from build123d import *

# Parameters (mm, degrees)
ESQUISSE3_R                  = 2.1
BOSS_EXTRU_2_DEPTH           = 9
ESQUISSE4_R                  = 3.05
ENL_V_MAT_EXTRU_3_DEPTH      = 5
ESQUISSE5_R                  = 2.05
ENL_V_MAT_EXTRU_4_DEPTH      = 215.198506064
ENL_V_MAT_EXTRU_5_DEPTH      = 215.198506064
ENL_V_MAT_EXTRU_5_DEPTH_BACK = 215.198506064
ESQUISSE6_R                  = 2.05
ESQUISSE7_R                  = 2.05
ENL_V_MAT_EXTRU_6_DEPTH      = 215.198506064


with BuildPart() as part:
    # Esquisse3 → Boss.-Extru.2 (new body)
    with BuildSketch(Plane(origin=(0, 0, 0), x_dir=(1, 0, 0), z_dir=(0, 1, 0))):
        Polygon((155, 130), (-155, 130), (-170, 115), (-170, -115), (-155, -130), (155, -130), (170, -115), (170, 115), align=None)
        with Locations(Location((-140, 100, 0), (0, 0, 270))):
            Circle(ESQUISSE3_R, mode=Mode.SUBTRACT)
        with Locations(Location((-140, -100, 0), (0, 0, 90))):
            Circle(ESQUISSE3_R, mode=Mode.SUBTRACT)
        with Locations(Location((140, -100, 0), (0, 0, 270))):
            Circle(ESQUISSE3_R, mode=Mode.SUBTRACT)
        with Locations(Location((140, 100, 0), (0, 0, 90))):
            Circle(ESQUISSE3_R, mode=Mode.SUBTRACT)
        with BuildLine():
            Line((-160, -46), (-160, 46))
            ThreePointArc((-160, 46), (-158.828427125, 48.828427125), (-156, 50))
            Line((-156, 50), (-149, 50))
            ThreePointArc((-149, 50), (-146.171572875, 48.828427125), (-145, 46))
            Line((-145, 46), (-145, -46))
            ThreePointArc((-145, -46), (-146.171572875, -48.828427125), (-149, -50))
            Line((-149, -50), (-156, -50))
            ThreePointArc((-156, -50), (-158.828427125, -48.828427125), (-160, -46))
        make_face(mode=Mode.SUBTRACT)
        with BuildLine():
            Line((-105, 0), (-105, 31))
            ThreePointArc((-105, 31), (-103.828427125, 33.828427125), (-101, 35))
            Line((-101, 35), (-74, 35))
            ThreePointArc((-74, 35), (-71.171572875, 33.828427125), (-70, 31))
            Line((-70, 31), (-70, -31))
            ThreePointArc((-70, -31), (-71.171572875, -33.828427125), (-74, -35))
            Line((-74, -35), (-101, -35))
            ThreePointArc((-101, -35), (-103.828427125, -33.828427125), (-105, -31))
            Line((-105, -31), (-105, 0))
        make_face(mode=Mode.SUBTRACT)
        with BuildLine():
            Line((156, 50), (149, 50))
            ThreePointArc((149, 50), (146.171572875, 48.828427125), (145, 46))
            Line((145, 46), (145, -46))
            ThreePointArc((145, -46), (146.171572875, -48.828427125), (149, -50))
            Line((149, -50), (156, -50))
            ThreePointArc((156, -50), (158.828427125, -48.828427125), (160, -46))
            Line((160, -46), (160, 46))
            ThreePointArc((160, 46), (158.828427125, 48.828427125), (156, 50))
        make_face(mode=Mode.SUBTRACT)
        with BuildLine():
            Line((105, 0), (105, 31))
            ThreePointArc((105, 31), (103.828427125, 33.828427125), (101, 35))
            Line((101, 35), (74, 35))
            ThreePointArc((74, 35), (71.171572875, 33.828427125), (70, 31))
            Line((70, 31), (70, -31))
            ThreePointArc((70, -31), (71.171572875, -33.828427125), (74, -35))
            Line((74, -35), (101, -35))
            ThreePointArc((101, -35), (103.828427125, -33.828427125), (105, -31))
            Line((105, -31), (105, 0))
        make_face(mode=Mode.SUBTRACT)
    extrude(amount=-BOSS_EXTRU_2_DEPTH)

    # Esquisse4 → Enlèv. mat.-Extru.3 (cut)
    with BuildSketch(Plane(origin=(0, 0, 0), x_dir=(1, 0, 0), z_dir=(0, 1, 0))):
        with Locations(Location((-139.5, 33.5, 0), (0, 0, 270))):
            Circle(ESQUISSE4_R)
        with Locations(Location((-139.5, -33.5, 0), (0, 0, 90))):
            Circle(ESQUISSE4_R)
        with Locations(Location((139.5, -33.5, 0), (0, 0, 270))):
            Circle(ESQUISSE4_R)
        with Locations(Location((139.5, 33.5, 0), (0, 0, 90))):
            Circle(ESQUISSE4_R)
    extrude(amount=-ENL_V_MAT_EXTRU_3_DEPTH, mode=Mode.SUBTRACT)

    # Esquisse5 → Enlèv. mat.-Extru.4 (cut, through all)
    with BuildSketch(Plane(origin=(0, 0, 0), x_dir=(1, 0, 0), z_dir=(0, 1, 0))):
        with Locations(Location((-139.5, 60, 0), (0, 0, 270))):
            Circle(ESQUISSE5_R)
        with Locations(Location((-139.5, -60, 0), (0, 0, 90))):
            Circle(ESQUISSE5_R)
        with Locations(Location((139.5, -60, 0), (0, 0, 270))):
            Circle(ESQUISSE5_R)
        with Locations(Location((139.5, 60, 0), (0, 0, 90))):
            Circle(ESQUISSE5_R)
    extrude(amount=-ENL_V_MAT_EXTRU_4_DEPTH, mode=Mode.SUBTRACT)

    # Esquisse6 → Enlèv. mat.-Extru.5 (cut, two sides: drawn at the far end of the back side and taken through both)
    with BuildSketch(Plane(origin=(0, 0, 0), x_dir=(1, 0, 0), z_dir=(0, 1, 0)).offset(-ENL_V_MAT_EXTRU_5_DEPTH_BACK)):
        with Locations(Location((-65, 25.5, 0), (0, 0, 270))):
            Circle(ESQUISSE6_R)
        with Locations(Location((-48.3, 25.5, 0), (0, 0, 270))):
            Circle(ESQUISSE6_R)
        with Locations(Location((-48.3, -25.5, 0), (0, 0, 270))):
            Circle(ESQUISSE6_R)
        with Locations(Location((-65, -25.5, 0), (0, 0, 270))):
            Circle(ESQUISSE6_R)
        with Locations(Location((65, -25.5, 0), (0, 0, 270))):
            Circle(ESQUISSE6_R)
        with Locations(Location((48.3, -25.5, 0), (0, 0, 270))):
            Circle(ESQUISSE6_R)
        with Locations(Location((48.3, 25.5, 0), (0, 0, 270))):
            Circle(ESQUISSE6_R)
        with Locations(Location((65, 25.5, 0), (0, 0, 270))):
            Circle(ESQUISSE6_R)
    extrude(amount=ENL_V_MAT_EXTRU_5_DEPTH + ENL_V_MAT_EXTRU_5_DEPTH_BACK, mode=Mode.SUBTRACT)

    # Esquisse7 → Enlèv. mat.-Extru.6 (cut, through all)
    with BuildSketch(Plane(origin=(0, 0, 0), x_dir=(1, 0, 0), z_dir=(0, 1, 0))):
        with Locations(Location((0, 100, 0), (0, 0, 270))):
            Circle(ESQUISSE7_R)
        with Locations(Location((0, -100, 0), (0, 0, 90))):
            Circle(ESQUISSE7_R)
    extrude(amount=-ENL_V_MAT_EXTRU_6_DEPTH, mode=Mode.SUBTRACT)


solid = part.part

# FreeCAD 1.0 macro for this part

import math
import FreeCAD as App
import Part
import Sketcher
from FreeCAD import Vector

doc = App.newDocument("Part")
body = doc.addObject("PartDesign::Body", "Body")

# Sketch on XZ plane
sketch1 = body.newObject("Sketcher::SketchObject", "Sketch")
sketch1.AttachmentSupport = (doc.getObject("XZ_Plane"), [""])
sketch1.MapMode = "FlatFace"
sketch1.addGeometry([
    Part.LineSegment(Vector(155, -130, 0), Vector(-155, -130, 0)),  # 0
    Part.LineSegment(Vector(-155, -130, 0), Vector(-170, -115, 0)),  # 1
    Part.LineSegment(Vector(-170, -115, 0), Vector(-170, 115, 0)),  # 2
    Part.LineSegment(Vector(-170, 115, 0), Vector(-155, 130, 0)),  # 3
    Part.LineSegment(Vector(-155, 130, 0), Vector(155, 130, 0)),  # 4
    Part.LineSegment(Vector(155, 130, 0), Vector(170, 115, 0)),  # 5
    Part.LineSegment(Vector(170, 115, 0), Vector(170, -115, 0)),  # 6
    Part.LineSegment(Vector(170, -115, 0), Vector(155, -130, 0)),  # 7
    Part.Circle(Vector(-140, 100, 0), Vector(0, 0, 1), 2.1),  # 8
    Part.Circle(Vector(140, 100, 0), Vector(0, 0, 1), 2.1),  # 9
    Part.ArcOfCircle(Part.Circle(Vector(-156, 46, 0), Vector(0, 0, 1), 4), math.radians(90), math.radians(180)),  # 10
    Part.LineSegment(Vector(-160, 46, 0), Vector(-160, -46, 0)),  # 11
    Part.ArcOfCircle(Part.Circle(Vector(-156, -46, 0), Vector(0, 0, 1), 4), math.radians(180), math.radians(270)),  # 12
    Part.LineSegment(Vector(-156, -50, 0), Vector(-149, -50, 0)),  # 13
    Part.ArcOfCircle(Part.Circle(Vector(-149, -46, 0), Vector(0, 0, 1), 4), math.radians(-90), math.radians(0)),  # 14
    Part.LineSegment(Vector(-145, -46, 0), Vector(-145, 46, 0)),  # 15
    Part.ArcOfCircle(Part.Circle(Vector(-149, 46, 0), Vector(0, 0, 1), 4), math.radians(0), math.radians(90)),  # 16
    Part.LineSegment(Vector(-149, 50, 0), Vector(-156, 50, 0)),  # 17
    Part.LineSegment(Vector(-105, 31, 0), Vector(-105, -31, 0)),  # 18
    Part.ArcOfCircle(Part.Circle(Vector(-101, -31, 0), Vector(0, 0, 1), 4), math.radians(180), math.radians(270)),  # 19
    Part.LineSegment(Vector(-101, -35, 0), Vector(-74, -35, 0)),  # 20
    Part.ArcOfCircle(Part.Circle(Vector(-74, -31, 0), Vector(0, 0, 1), 4), math.radians(-90), math.radians(0)),  # 21
    Part.LineSegment(Vector(-70, -31, 0), Vector(-70, 31, 0)),  # 22
    Part.ArcOfCircle(Part.Circle(Vector(-74, 31, 0), Vector(0, 0, 1), 4), math.radians(0), math.radians(90)),  # 23
    Part.LineSegment(Vector(-74, 35, 0), Vector(-101, 35, 0)),  # 24
    Part.ArcOfCircle(Part.Circle(Vector(-101, 31, 0), Vector(0, 0, 1), 4), math.radians(90), math.radians(180)),  # 25
    Part.Circle(Vector(-140, -100, 0), Vector(0, 0, 1), 2.1),  # 26
    Part.ArcOfCircle(Part.Circle(Vector(101, -31, 0), Vector(0, 0, 1), 4), math.radians(-90), math.radians(0)),  # 27
    Part.LineSegment(Vector(105, -31, 0), Vector(105, 31, 0)),  # 28
    Part.ArcOfCircle(Part.Circle(Vector(101, 31, 0), Vector(0, 0, 1), 4), math.radians(0), math.radians(90)),  # 29
    Part.LineSegment(Vector(101, 35, 0), Vector(74, 35, 0)),  # 30
    Part.ArcOfCircle(Part.Circle(Vector(74, 31, 0), Vector(0, 0, 1), 4), math.radians(90), math.radians(180)),  # 31
    Part.LineSegment(Vector(70, 31, 0), Vector(70, -31, 0)),  # 32
    Part.ArcOfCircle(Part.Circle(Vector(74, -31, 0), Vector(0, 0, 1), 4), math.radians(180), math.radians(270)),  # 33
    Part.LineSegment(Vector(74, -35, 0), Vector(101, -35, 0)),  # 34
    Part.LineSegment(Vector(149, -50, 0), Vector(156, -50, 0)),  # 35
    Part.ArcOfCircle(Part.Circle(Vector(156, -46, 0), Vector(0, 0, 1), 4), math.radians(-90), math.radians(0)),  # 36
    Part.LineSegment(Vector(160, -46, 0), Vector(160, 46, 0)),  # 37
    Part.ArcOfCircle(Part.Circle(Vector(156, 46, 0), Vector(0, 0, 1), 4), math.radians(0), math.radians(90)),  # 38
    Part.LineSegment(Vector(156, 50, 0), Vector(149, 50, 0)),  # 39
    Part.ArcOfCircle(Part.Circle(Vector(149, 46, 0), Vector(0, 0, 1), 4), math.radians(90), math.radians(180)),  # 40
    Part.LineSegment(Vector(145, 46, 0), Vector(145, -46, 0)),  # 41
    Part.ArcOfCircle(Part.Circle(Vector(149, -46, 0), Vector(0, 0, 1), 4), math.radians(180), math.radians(270)),  # 42
    Part.Circle(Vector(140, -100, 0), Vector(0, 0, 1), 2.1),  # 43
], False)
sketch1.addConstraint([
    Sketcher.Constraint("Coincident", 0, 2, 1, 1),
    Sketcher.Constraint("Coincident", 1, 2, 2, 1),
    Sketcher.Constraint("Coincident", 2, 2, 3, 1),
    Sketcher.Constraint("Coincident", 3, 2, 4, 1),
    Sketcher.Constraint("Coincident", 4, 2, 5, 1),
    Sketcher.Constraint("Coincident", 5, 2, 6, 1),
    Sketcher.Constraint("Coincident", 6, 2, 7, 1),
    Sketcher.Constraint("Coincident", 7, 2, 0, 1),
    Sketcher.Constraint("Tangent", 10, 2, 11, 1),
    Sketcher.Constraint("Tangent", 11, 2, 12, 1),
    Sketcher.Constraint("Tangent", 12, 2, 13, 1),
    Sketcher.Constraint("Tangent", 13, 2, 14, 1),
    Sketcher.Constraint("Tangent", 14, 2, 15, 1),
    Sketcher.Constraint("Tangent", 15, 2, 16, 1),
    Sketcher.Constraint("Tangent", 16, 2, 17, 1),
    Sketcher.Constraint("Tangent", 17, 2, 10, 1),
    Sketcher.Constraint("Tangent", 18, 2, 19, 1),
    Sketcher.Constraint("Tangent", 19, 2, 20, 1),
    Sketcher.Constraint("Tangent", 20, 2, 21, 1),
    Sketcher.Constraint("Tangent", 21, 2, 22, 1),
    Sketcher.Constraint("Tangent", 22, 2, 23, 1),
    Sketcher.Constraint("Tangent", 23, 2, 24, 1),
    Sketcher.Constraint("Tangent", 24, 2, 25, 1),
    Sketcher.Constraint("Tangent", 25, 2, 18, 1),
    Sketcher.Constraint("Tangent", 27, 2, 28, 1),
    Sketcher.Constraint("Tangent", 28, 2, 29, 1),
    Sketcher.Constraint("Tangent", 29, 2, 30, 1),
    Sketcher.Constraint("Tangent", 30, 2, 31, 1),
    Sketcher.Constraint("Tangent", 31, 2, 32, 1),
    Sketcher.Constraint("Tangent", 32, 2, 33, 1),
    Sketcher.Constraint("Tangent", 33, 2, 34, 1),
    Sketcher.Constraint("Tangent", 34, 2, 27, 1),
    Sketcher.Constraint("Tangent", 35, 2, 36, 1),
    Sketcher.Constraint("Tangent", 36, 2, 37, 1),
    Sketcher.Constraint("Tangent", 37, 2, 38, 1),
    Sketcher.Constraint("Tangent", 38, 2, 39, 1),
    Sketcher.Constraint("Tangent", 39, 2, 40, 1),
    Sketcher.Constraint("Tangent", 40, 2, 41, 1),
    Sketcher.Constraint("Tangent", 41, 2, 42, 1),
    Sketcher.Constraint("Tangent", 42, 2, 35, 1),
    Sketcher.Constraint("Horizontal", 0),
    Sketcher.Constraint("Vertical", 2),
    Sketcher.Constraint("Horizontal", 4),
    Sketcher.Constraint("Vertical", 6),
    Sketcher.Constraint("Vertical", 11),
    Sketcher.Constraint("Horizontal", 13),
    Sketcher.Constraint("Vertical", 15),
    Sketcher.Constraint("Horizontal", 17),
    Sketcher.Constraint("Vertical", 18),
    Sketcher.Constraint("Horizontal", 20),
    Sketcher.Constraint("Vertical", 22),
    Sketcher.Constraint("Horizontal", 24),
    Sketcher.Constraint("Vertical", 28),
    Sketcher.Constraint("Horizontal", 30),
    Sketcher.Constraint("Vertical", 32),
    Sketcher.Constraint("Horizontal", 34),
    Sketcher.Constraint("Horizontal", 35),
    Sketcher.Constraint("Vertical", 37),
    Sketcher.Constraint("Horizontal", 39),
    Sketcher.Constraint("Vertical", 41),
    Sketcher.Constraint("Equal", 8, 9),
    Sketcher.Constraint("Equal", 10, 12),
    Sketcher.Constraint("Equal", 12, 14),
    Sketcher.Constraint("Equal", 14, 16),
    Sketcher.Constraint("Equal", 16, 19),
    Sketcher.Constraint("Equal", 19, 21),
    Sketcher.Constraint("Equal", 21, 23),
    Sketcher.Constraint("Equal", 23, 25),
    Sketcher.Constraint("Equal", 9, 26),
    Sketcher.Constraint("Equal", 25, 27),
    Sketcher.Constraint("Equal", 27, 29),
    Sketcher.Constraint("Equal", 29, 31),
    Sketcher.Constraint("Equal", 31, 33),
    Sketcher.Constraint("Equal", 33, 36),
    Sketcher.Constraint("Equal", 36, 38),
    Sketcher.Constraint("Equal", 38, 40),
    Sketcher.Constraint("Equal", 40, 42),
    Sketcher.Constraint("Equal", 26, 43),
    Sketcher.Constraint("Symmetric", 9, 3, 26, 3, -1, 1),
    Sketcher.Constraint("Symmetric", 25, 3, 27, 3, -1, 1),
    Sketcher.Constraint("Symmetric", 21, 3, 31, 3, -1, 1),
    Sketcher.Constraint("Symmetric", 10, 3, 36, 3, -1, 1),
    Sketcher.Constraint("Symmetric", 14, 3, 40, 3, -1, 1),
    Sketcher.Constraint("Symmetric", 8, 3, 43, 3, -1, 1),
    Sketcher.Constraint("Symmetric", 0, 2, 4, 2, -1, 1),
    Sketcher.Constraint("Symmetric", 1, 2, 5, 2, -1, 1),
    Sketcher.Constraint("Symmetric", 8, 3, 9, 3, -2),
    Sketcher.Constraint("Perpendicular", 1, 3),
    Sketcher.Constraint("Perpendicular", 5, 7),
    Sketcher.Constraint("Horizontal", 21, 3, 27, 3),
    Sketcher.Constraint("Horizontal", 14, 3, 36, 3),
    Sketcher.Constraint("Horizontal", 2, 2, 5, 2),
    Sketcher.Constraint("Horizontal", 1, 2, 6, 2),
    Sketcher.Constraint("Vertical", 0, 2, 3, 2),
    Sketcher.Constraint("Radius", 10, 4.0),
    Sketcher.Constraint("Diameter", 8, 4.2),
    Sketcher.Constraint("DistanceX", 0, 2, 0, 1, 310.0),
    Sketcher.Constraint("DistanceX", 13, 1, 13, 2, 7.0),
    Sketcher.Constraint("DistanceX", 20, 1, 20, 2, 27.0),
    Sketcher.Constraint("DistanceY", 2, 1, 2, 2, 230.0),
    Sketcher.Constraint("DistanceY", 11, 2, 11, 1, 92.0),
    Sketcher.Constraint("DistanceY", 18, 2, 18, 1, 62.0),
    Sketcher.Constraint("DistanceX", 8, 3, -1, 1, 140.0),
    Sketcher.Constraint("DistanceY", -1, 1, 8, 3, 100.0),
    Sketcher.Constraint("DistanceX", 10, 3, -1, 1, 156.0),
    Sketcher.Constraint("DistanceX", 19, 3, -1, 1, 101.0),
    Sketcher.Constraint("DistanceY", 0, 2, -1, 1, 130.0),
])
pad1 = body.newObject("PartDesign::Pad", "Pad")
pad1.Profile = sketch1
pad1.Length = 9

# Sketch on XZ plane
sketch2 = body.newObject("Sketcher::SketchObject", "Sketch001")
sketch2.AttachmentSupport = (doc.getObject("XZ_Plane"), [""])
sketch2.MapMode = "FlatFace"
sketch2.addGeometry([
    Part.Circle(Vector(-139.5, -33.5, 0), Vector(0, 0, 1), 3),
    Part.Circle(Vector(-139.5, 33.5, 0), Vector(0, 0, 1), 3),
    Part.Circle(Vector(139.5, 33.5, 0), Vector(0, 0, 1), 3),
    Part.Circle(Vector(139.5, -33.5, 0), Vector(0, 0, 1), 3),
], False)
sketch2.addConstraint([
    Sketcher.Constraint("Equal", 0, 1),
    Sketcher.Constraint("Equal", 1, 2),
    Sketcher.Constraint("Equal", 2, 3),
    Sketcher.Constraint("Symmetric", 0, 3, 2, 3, -1, 1),
    Sketcher.Constraint("Symmetric", 1, 3, 3, 3, -1, 1),
    Sketcher.Constraint("Symmetric", 1, 3, 2, 3, -2),
    Sketcher.Constraint("Diameter", 0, 6.1),
    Sketcher.Constraint("DistanceY", 0, 3, 1, 3, 67.0),
    Sketcher.Constraint("DistanceX", 1, 3, 2, 3, 279.0),
])
pocket1 = body.newObject("PartDesign::Pocket", "Pocket")
pocket1.Profile = sketch2
pocket1.Length = 5
pocket1.Reversed = True

# Sketch on XZ plane
sketch3 = body.newObject("Sketcher::SketchObject", "Sketch002")
sketch3.AttachmentSupport = (doc.getObject("XZ_Plane"), [""])
sketch3.MapMode = "FlatFace"
sketch3.addGeometry([
    Part.Circle(Vector(-139.5, -60, 0), Vector(0, 0, 1), 2),
    Part.Circle(Vector(-139.5, 60, 0), Vector(0, 0, 1), 2),
    Part.Circle(Vector(139.5, 60, 0), Vector(0, 0, 1), 2),
    Part.Circle(Vector(139.5, -60, 0), Vector(0, 0, 1), 2),
], False)
sketch3.addConstraint([
    Sketcher.Constraint("Equal", 0, 1),
    Sketcher.Constraint("Equal", 1, 2),
    Sketcher.Constraint("Equal", 2, 3),
    Sketcher.Constraint("Symmetric", 0, 3, 2, 3, -1, 1),
    Sketcher.Constraint("Symmetric", 1, 3, 3, 3, -1, 1),
    Sketcher.Constraint("Symmetric", 1, 3, 2, 3, -2),
    Sketcher.Constraint("Diameter", 0, 4.1),
    Sketcher.Constraint("DistanceY", 0, 3, -1, 1, 60.0),
    Sketcher.Constraint("DistanceX", 1, 3, 2, 3, 279.0),
])
pocket2 = body.newObject("PartDesign::Pocket", "Pocket001")
pocket2.Profile = sketch3
pocket2.Type = "ThroughAll"
pocket2.Reversed = True

# Sketch on XZ plane
sketch4 = body.newObject("Sketcher::SketchObject", "Sketch003")
sketch4.AttachmentSupport = (doc.getObject("XZ_Plane"), [""])
sketch4.MapMode = "FlatFace"
sketch4.addGeometry([
    Part.Circle(Vector(-65, -25.5, 0), Vector(0, 0, 1), 2),  # 0
    Part.Circle(Vector(-48.3, -25.5, 0), Vector(0, 0, 1), 2),  # 1
    Part.Circle(Vector(-48.3, 25.5, 0), Vector(0, 0, 1), 2),  # 2
    Part.Circle(Vector(-65, 25.5, 0), Vector(0, 0, 1), 2),  # 3
    Part.Circle(Vector(65, 25.5, 0), Vector(0, 0, 1), 2),  # 4
    Part.Circle(Vector(48.3, 25.5, 0), Vector(0, 0, 1), 2),  # 5
    Part.Circle(Vector(48.3, -25.5, 0), Vector(0, 0, 1), 2),  # 6
    Part.Circle(Vector(65, -25.5, 0), Vector(0, 0, 1), 2),  # 7
], False)
sketch4.addConstraint([
    Sketcher.Constraint("Equal", 0, 1),
    Sketcher.Constraint("Equal", 1, 2),
    Sketcher.Constraint("Equal", 2, 3),
    Sketcher.Constraint("Equal", 3, 4),
    Sketcher.Constraint("Equal", 4, 5),
    Sketcher.Constraint("Equal", 5, 6),
    Sketcher.Constraint("Equal", 6, 7),
    Sketcher.Constraint("Symmetric", 0, 3, 4, 3, -1, 1),
    Sketcher.Constraint("Symmetric", 1, 3, 5, 3, -1, 1),
    Sketcher.Constraint("Symmetric", 2, 3, 6, 3, -1, 1),
    Sketcher.Constraint("Symmetric", 3, 3, 7, 3, -1, 1),
    Sketcher.Constraint("Symmetric", 3, 3, 4, 3, -2),
    Sketcher.Constraint("Symmetric", 2, 3, 5, 3, -2),
    Sketcher.Constraint("Horizontal", 0, 3, 1, 3),
    Sketcher.Constraint("Diameter", 0, 4.1),
    Sketcher.Constraint("DistanceX", 0, 3, -1, 1, 65.0),
    Sketcher.Constraint("DistanceY", 1, 3, 2, 3, 51.0),
    Sketcher.Constraint("DistanceX", 1, 3, -1, 1, 48.3),
])
pocket3 = body.newObject("PartDesign::Pocket", "Pocket002")
pocket3.Profile = sketch4
pocket3.Type = "ThroughAll"
pocket3.Midplane = True

# Sketch on XZ plane
sketch5 = body.newObject("Sketcher::SketchObject", "Sketch004")
sketch5.AttachmentSupport = (doc.getObject("XZ_Plane"), [""])
sketch5.MapMode = "FlatFace"
sketch5.addGeometry([
    Part.Circle(Vector(0, -100, 0), Vector(0, 0, 1), 2),
    Part.Circle(Vector(0, 100, 0), Vector(0, 0, 1), 2),
], False)
sketch5.addConstraint([
    Sketcher.Constraint("Equal", 0, 1),
    Sketcher.Constraint("Symmetric", 0, 3, 1, 3, -1, 1),
    Sketcher.Constraint("PointOnObject", 0, 3, -2),
    Sketcher.Constraint("Diameter", 0, 4.1),
    Sketcher.Constraint("DistanceY", 0, 3, -1, 1, 100.0),
])
pocket4 = body.newObject("PartDesign::Pocket", "Pocket003")
pocket4.Profile = sketch5
pocket4.Type = "ThroughAll"
pocket4.Reversed = True

doc.recompute()
